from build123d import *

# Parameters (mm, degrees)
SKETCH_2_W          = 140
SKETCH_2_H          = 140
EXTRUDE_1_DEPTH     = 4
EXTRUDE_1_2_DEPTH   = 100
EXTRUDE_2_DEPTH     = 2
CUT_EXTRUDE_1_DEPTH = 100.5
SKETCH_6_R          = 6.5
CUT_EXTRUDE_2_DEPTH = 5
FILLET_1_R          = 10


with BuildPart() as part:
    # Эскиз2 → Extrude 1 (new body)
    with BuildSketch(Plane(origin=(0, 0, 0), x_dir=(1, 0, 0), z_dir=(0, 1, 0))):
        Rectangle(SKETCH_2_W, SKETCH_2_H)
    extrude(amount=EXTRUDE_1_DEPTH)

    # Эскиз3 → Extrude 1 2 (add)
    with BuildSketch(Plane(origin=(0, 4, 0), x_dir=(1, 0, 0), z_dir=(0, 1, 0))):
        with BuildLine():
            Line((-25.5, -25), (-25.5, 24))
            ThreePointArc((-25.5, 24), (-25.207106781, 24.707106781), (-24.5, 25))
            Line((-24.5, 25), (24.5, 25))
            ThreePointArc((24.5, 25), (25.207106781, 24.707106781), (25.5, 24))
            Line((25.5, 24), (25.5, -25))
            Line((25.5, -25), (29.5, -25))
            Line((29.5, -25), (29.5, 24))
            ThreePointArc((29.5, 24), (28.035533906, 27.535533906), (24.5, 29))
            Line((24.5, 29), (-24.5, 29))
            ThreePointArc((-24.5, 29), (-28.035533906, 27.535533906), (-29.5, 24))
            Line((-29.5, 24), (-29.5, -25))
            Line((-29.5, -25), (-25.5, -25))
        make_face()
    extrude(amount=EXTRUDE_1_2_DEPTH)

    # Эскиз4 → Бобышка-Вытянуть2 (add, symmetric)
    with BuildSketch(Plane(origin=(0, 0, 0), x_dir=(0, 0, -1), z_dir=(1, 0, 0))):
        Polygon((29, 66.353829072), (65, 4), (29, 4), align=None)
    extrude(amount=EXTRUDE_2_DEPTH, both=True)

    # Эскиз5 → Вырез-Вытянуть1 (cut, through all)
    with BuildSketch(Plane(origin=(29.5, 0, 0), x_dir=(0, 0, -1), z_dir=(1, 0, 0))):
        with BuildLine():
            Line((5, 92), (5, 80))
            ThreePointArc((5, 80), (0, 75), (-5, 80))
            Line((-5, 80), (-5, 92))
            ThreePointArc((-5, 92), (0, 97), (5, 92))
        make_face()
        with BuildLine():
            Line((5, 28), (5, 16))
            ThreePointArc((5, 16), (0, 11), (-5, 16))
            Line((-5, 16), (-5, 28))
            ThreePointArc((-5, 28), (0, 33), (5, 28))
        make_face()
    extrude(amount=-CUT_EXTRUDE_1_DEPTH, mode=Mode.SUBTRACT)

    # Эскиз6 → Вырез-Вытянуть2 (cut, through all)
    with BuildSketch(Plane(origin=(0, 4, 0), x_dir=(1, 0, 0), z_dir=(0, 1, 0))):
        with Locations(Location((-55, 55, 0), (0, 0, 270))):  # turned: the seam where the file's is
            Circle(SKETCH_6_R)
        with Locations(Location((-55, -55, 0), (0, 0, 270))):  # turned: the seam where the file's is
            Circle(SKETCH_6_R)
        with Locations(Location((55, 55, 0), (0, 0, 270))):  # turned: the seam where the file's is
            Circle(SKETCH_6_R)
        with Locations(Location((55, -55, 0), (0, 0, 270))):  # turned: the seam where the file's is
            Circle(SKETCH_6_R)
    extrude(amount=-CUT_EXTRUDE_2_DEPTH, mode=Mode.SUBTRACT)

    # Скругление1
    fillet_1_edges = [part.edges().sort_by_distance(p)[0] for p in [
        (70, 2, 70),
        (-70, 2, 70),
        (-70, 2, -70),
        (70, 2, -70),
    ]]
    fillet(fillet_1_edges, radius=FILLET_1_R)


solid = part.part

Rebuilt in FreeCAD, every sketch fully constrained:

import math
import FreeCAD as App
import Part
import Sketcher
Q = App.Units.Quantity


def edges_at(feature, points):
    """Names of the edges that pass closest to the given points."""
    edges = feature.Shape.Edges
    near = lambda p: min(range(len(edges)), key=lambda i: edges[i].distToShape(Part.Vertex(*p))[0])
    return sorted({f"Edge{near(p) + 1}" for p in points})

doc = App.newDocument("Part")
body = doc.addObject("PartDesign::Body", "Body")

# Sketch on XZ plane
sketch1 = doc.addObject("Sketcher::SketchObject", "Sketch")
body.addObject(sketch1)
sketch1.AttachmentSupport = (doc.XZ_Plane, [""])
sketch1.MapMode = "FlatFace"
sketch1.addGeometry([
    Part.LineSegment(App.Vector(-70, -70, 0), App.Vector(-70, 70, 0)),
    Part.LineSegment(App.Vector(-70, 70, 0), App.Vector(70, 70, 0)),
    Part.LineSegment(App.Vector(70, 70, 0), App.Vector(70, -70, 0)),
    Part.LineSegment(App.Vector(70, -70, 0), App.Vector(-70, -70, 0)),
], False)
sketch1.addConstraint([
    Sketcher.Constraint("Coincident", 0, 2, 1, 1),
    Sketcher.Constraint("Coincident", 1, 2, 2, 1),
    Sketcher.Constraint("Coincident", 2, 2, 3, 1),
    Sketcher.Constraint("Coincident", 3, 2, 0, 1),
    Sketcher.Constraint("Vertical", 0),
    Sketcher.Constraint("Horizontal", 1),
    Sketcher.Constraint("Vertical", 2),
    Sketcher.Constraint("Horizontal", 3),
    Sketcher.Constraint("Symmetric", 0, 2, 2, 2, -1, 1),
    Sketcher.Constraint("Equal", 3, 0),
    Sketcher.Constraint("DistanceX", 1, 1, 1, 2, 140.0),
])
pad1 = doc.addObject("PartDesign::Pad", "Pad")
body.addObject(pad1)
pad1.Profile = sketch1
pad1.Length = 4
pad1.Reversed = True

# Sketch on XZ plane
sketch2 = doc.addObject("Sketcher::SketchObject", "Sketch001")
body.addObject(sketch2)
sketch2.AttachmentSupport = (doc.XZ_Plane, [""])
sketch2.MapMode = "FlatFace"
sketch2.AttachmentOffset = App.Placement(App.Vector(0, 0, -4), App.Rotation())
sketch2.addGeometry([
    Part.LineSegment(App.Vector(-25.5, 25, 0), App.Vector(-25.5, -24, 0)),  # 0
    Part.ArcOfCircle(Part.Circle(App.Vector(-24.5, -24, 0), App.Vector(0, 0, 1), 1), math.radians(-180), math.radians(-90)),  # 1
    Part.LineSegment(App.Vector(-24.5, -25, 0), App.Vector(24.5, -25, 0)),  # 2
    Part.ArcOfCircle(Part.Circle(App.Vector(24.5, -24, 0), App.Vector(0, 0, 1), 1), math.radians(-90), math.radians(0)),  # 3
    Part.LineSegment(App.Vector(25.5, -24, 0), App.Vector(25.5, 25, 0)),  # 4
    Part.LineSegment(App.Vector(25.5, 25, 0), App.Vector(29.5, 25, 0)),  # 5
    Part.LineSegment(App.Vector(29.5, 25, 0), App.Vector(29.5, -24, 0)),  # 6
    Part.ArcOfCircle(Part.Circle(App.Vector(24.5, -24, 0), App.Vector(0, 0, 1), 5), math.radians(-90), math.radians(0)),  # 7
    Part.LineSegment(App.Vector(24.5, -29, 0), App.Vector(-24.5, -29, 0)),  # 8
    Part.ArcOfCircle(Part.Circle(App.Vector(-24.5, -24, 0), App.Vector(0, 0, 1), 5), math.radians(180), math.radians(270)),  # 9
    Part.LineSegment(App.Vector(-29.5, -24, 0), App.Vector(-29.5, 25, 0)),  # 10
    Part.LineSegment(App.Vector(-29.5, 25, 0), App.Vector(-25.5, 25, 0)),  # 11
], False)
sketch2.addConstraint([
    Sketcher.Constraint("Tangent", 0, 2, 1, 1),
    Sketcher.Constraint("Tangent", 1, 2, 2, 1),
    Sketcher.Constraint("Tangent", 2, 2, 3, 1),
    Sketcher.Constraint("Tangent", 3, 2, 4, 1),
    Sketcher.Constraint("Coincident", 4, 2, 5, 1),
    Sketcher.Constraint("Coincident", 5, 2, 6, 1),
    Sketcher.Constraint("Tangent", 6, 2, 7, 2),
    Sketcher.Constraint("Tangent", 7, 1, 8, 1),
    Sketcher.Constraint("Tangent", 8, 2, 9, 2),
    Sketcher.Constraint("Tangent", 9, 1, 10, 1),
    Sketcher.Constraint("Coincident", 10, 2, 11, 1),
    Sketcher.Constraint("Coincident", 11, 2, 0, 1),
    Sketcher.Constraint("Vertical", 0),
    Sketcher.Constraint("Horizontal", 2),
    Sketcher.Constraint("Vertical", 4),
    Sketcher.Constraint("Horizontal", 5),
    Sketcher.Constraint("Vertical", 6),
    Sketcher.Constraint("Horizontal", 8),
    Sketcher.Constraint("Vertical", 10),
    Sketcher.Constraint("Horizontal", 11),
    Sketcher.Constraint("Coincident", 7, 3, 3, 3),
    Sketcher.Constraint("Coincident", 9, 3, 1, 3),
    Sketcher.Constraint("Equal", 1, 3),
    Sketcher.Constraint("Symmetric", 5, 2, 10, 2, -2),
    Sketcher.Constraint("Equal", 8, 0),
    Sketcher.Constraint("Radius", 1, 1.0),
    Sketcher.Constraint("Radius", 7, 5.0),
    Sketcher.Constraint("DistanceX", 2, 1, 2, 2, 49.0),
    Sketcher.Constraint("DistanceY", 1, 3, -1, 1, 24.0),
])
pad2 = doc.addObject("PartDesign::Pad", "Pad001")
body.addObject(pad2)
pad2.Profile = sketch2
pad2.Length = 100
pad2.Reversed = True

# Sketch on YZ plane
sketch3 = doc.addObject("Sketcher::SketchObject", "Sketch002")
body.addObject(sketch3)
sketch3.AttachmentSupport = (doc.YZ_Plane, [""])
sketch3.MapMode = "FlatFace"
sketch3.addGeometry([
    Part.LineSegment(App.Vector(4, -65, 0), App.Vector(66, -29, 0)),
    Part.LineSegment(App.Vector(66, -29, 0), App.Vector(4, -29, 0)),
    Part.LineSegment(App.Vector(4, -29, 0), App.Vector(4, -65, 0)),
], False)
sketch3.addConstraint([
    Sketcher.Constraint("Coincident", 0, 2, 1, 1),
    Sketcher.Constraint("Coincident", 1, 2, 2, 1),
    Sketcher.Constraint("Coincident", 2, 2, 0, 1),
    Sketcher.Constraint("Horizontal", 1),
    Sketcher.Constraint("Vertical", 2),
    Sketcher.Constraint("DistanceY", 2, 2, 2, 1, 36.0),
    Sketcher.Constraint("Angle", 0, Q("30 deg")),
    Sketcher.Constraint("DistanceY", 0, 2, -1, 1, 29.0),
    Sketcher.Constraint("DistanceX", -1, 1, 1, 2, 4.0),
])
pad3 = doc.addObject("PartDesign::Pad", "Pad002")
body.addObject(pad3)
pad3.Profile = sketch3
pad3.Length = 4
pad3.Midplane = True

# Sketch on YZ plane
sketch4 = doc.addObject("Sketcher::SketchObject", "Sketch003")
body.addObject(sketch4)
sketch4.AttachmentSupport = (doc.YZ_Plane, [""])
sketch4.MapMode = "FlatFace"
sketch4.AttachmentOffset = App.Placement(App.Vector(0, 0, 29.5), App.Rotation())
sketch4.addGeometry([
    Part.LineSegment(App.Vector(80, -5, 0), App.Vector(92, -5, 0)),  # 0
    Part.ArcOfCircle(Part.Circle(App.Vector(92, 0, 0), App.Vector(0, 0, 1), 5), math.radians(-90), math.radians(90)),  # 1
    Part.LineSegment(App.Vector(92, 5, 0), App.Vector(80, 5, 0)),  # 2
    Part.ArcOfCircle(Part.Circle(App.Vector(80, 0, 0), App.Vector(0, 0, 1), 5), math.radians(90), math.radians(270)),  # 3
    Part.LineSegment(App.Vector(16, -5, 0), App.Vector(28, -5, 0)),  # 4
    Part.ArcOfCircle(Part.Circle(App.Vector(28, 0, 0), App.Vector(0, 0, 1), 5), math.radians(-90), math.radians(90)),  # 5
    Part.LineSegment(App.Vector(28, 5, 0), App.Vector(16, 5, 0)),  # 6
    Part.ArcOfCircle(Part.Circle(App.Vector(16, 0, 0), App.Vector(0, 0, 1), 5), math.radians(90), math.radians(270)),  # 7
], False)
sketch4.addConstraint([
    Sketcher.Constraint("Tangent", 0, 2, 1, 1),
    Sketcher.Constraint("Tangent", 1, 2, 2, 1),
    Sketcher.Constraint("Tangent", 2, 2, 3, 1),
    Sketcher.Constraint("Tangent", 3, 2, 0, 1),
    Sketcher.Constraint("Tangent", 4, 2, 5, 1),
    Sketcher.Constraint("Tangent", 5, 2, 6, 1),
    Sketcher.Constraint("Tangent", 6, 2, 7, 1),
    Sketcher.Constraint("Tangent", 7, 2, 4, 1),
    Sketcher.Constraint("Horizontal", 0),
    Sketcher.Constraint("Horizontal", 2),
    Sketcher.Constraint("Horizontal", 4),
    Sketcher.Constraint("Horizontal", 6),
    Sketcher.Constraint("Equal", 3, 5),
    Sketcher.Constraint("PointOnObject", 1, 3, -1),
    Sketcher.Constraint("PointOnObject", 5, 3, -1),
    Sketcher.Constraint("Equal", 2, 4),
    Sketcher.Constraint("Radius", 1, 5.0),
    Sketcher.Constraint("DistanceX", 0, 1, 0, 2, 12.0),
    Sketcher.Constraint("DistanceX", -1, 1, 1, 3, 92.0),
    Sketcher.Constraint("DistanceX", -1, 1, 5, 3, 28.0),
])
pocket1 = doc.addObject("PartDesign::Pocket", "Pocket")
body.addObject(pocket1)
pocket1.Profile = sketch4
pocket1.Type = "ThroughAll"

# Sketch on XZ plane
sketch5 = doc.addObject("Sketcher::SketchObject", "Sketch004")
body.addObject(sketch5)
sketch5.AttachmentSupport = (doc.XZ_Plane, [""])
sketch5.MapMode = "FlatFace"
sketch5.AttachmentOffset = App.Placement(App.Vector(0, 0, -4), App.Rotation())
sketch5.addGeometry([
    Part.Circle(App.Vector(-55, -55, 0), App.Vector(0, 0, 1), 6),
    Part.Circle(App.Vector(-55, 55, 0), App.Vector(0, 0, 1), 6),
    Part.Circle(App.Vector(55, -55, 0), App.Vector(0, 0, 1), 6),
    Part.Circle(App.Vector(55, 55, 0), App.Vector(0, 0, 1), 6),
], False)
sketch5.addConstraint([
    Sketcher.Constraint("Equal", 0, 1),
    Sketcher.Constraint("Equal", 1, 2),
    Sketcher.Constraint("Equal", 2, 3),
    Sketcher.Constraint("Symmetric", 1, 3, 2, 3, -1, 1),
    Sketcher.Constraint("Symmetric", 0, 3, 3, 3, -1, 1),
    Sketcher.Constraint("Symmetric", 0, 3, 2, 3, -2),
    Sketcher.Constraint("Diameter", 0, 13.0),
    Sketcher.Constraint("DistanceX", 0, 3, -1, 1, 55.0),
    Sketcher.Constraint("DistanceY", 0, 3, -1, 1, 55.0),
])
pocket2 = doc.addObject("PartDesign::Pocket", "Pocket001")
body.addObject(pocket2)
pocket2.Profile = sketch5
pocket2.Type = "ThroughAll"
pocket2.Reversed = True
doc.recompute()

fillet = doc.addObject("PartDesign::Fillet", "Fillet")
body.addObject(fillet)
fillet.Base = (pocket2, edges_at(pocket2, [
    (70, 2, 70),
    (-70, 2, 70),
    (-70, 2, -70),
    (70, 2, -70),
]))
fillet.Radius = 10

doc.recompute()
